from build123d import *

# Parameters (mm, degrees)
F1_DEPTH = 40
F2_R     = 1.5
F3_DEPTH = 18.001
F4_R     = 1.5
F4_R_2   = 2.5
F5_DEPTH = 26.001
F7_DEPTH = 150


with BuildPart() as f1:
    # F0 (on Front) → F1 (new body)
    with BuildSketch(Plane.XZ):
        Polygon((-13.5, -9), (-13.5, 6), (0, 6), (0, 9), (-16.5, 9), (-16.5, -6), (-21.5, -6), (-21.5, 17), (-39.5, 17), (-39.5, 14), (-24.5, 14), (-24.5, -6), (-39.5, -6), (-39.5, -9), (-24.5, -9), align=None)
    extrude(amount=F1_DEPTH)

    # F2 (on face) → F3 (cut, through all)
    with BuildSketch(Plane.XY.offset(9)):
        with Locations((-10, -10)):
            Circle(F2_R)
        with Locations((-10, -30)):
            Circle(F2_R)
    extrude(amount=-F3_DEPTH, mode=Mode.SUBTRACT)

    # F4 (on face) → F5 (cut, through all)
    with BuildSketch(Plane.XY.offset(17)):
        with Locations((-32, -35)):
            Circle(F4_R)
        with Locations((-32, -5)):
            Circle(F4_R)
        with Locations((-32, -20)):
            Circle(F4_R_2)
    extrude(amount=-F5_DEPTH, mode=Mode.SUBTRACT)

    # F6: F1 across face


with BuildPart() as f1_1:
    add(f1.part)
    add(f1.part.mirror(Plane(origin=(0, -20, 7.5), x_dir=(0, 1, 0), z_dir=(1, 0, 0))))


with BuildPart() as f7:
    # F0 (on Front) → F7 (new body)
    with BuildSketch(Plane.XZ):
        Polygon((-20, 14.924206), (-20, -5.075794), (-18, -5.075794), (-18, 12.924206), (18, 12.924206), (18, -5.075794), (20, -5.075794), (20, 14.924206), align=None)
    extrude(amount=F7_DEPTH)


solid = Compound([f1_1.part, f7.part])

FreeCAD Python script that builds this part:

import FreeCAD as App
import Part
import Sketcher
from FreeCAD import Vector
Q = App.Units.Quantity

doc = App.newDocument("Part")
body = doc.addObject("PartDesign::Body", "Body")

# Sketch on XZ plane
sketch1 = body.newObject("Sketcher::SketchObject", "Sketch")
sketch1.AttachmentSupport = (doc.getObject("XZ_Plane"), [""])
sketch1.MapMode = "FlatFace"
sketch1.addGeometry([
    Part.LineSegment(Vector(-13.5, -9, 0), Vector(-13.5, 6, 0)),  # 0
    Part.LineSegment(Vector(-13.5, 6, 0), Vector(0, 6, 0)),  # 1
    Part.LineSegment(Vector(0, 6, 0), Vector(0, 9, 0)),  # 2
    Part.LineSegment(Vector(0, 9, 0), Vector(-16.5, 9, 0)),  # 3
    Part.LineSegment(Vector(-16.5, 9, 0), Vector(-16.5, -6, 0)),  # 4
    Part.LineSegment(Vector(-16.5, -6, 0), Vector(-21.5, -6, 0)),  # 5
    Part.LineSegment(Vector(-21.5, -6, 0), Vector(-21.5, 17, 0)),  # 6
    Part.LineSegment(Vector(-21.5, 17, 0), Vector(-39.5, 17, 0)),  # 7
    Part.LineSegment(Vector(-39.5, 17, 0), Vector(-39.5, 14, 0)),  # 8
    Part.LineSegment(Vector(-39.5, 14, 0), Vector(-24.5, 14, 0)),  # 9
    Part.LineSegment(Vector(-24.5, 14, 0), Vector(-24.5, -6, 0)),  # 10
    Part.LineSegment(Vector(-24.5, -6, 0), Vector(-39.5, -6, 0)),  # 11
    Part.LineSegment(Vector(-39.5, -6, 0), Vector(-39.5, -9, 0)),  # 12
    Part.LineSegment(Vector(-39.5, -9, 0), Vector(-13.5, -9, 0)),  # 13
], False)
sketch1.addConstraint([
    Sketcher.Constraint("Coincident", 0, 2, 1, 1),
    Sketcher.Constraint("Coincident", 1, 2, 2, 1),
    Sketcher.Constraint("Coincident", 2, 2, 3, 1),
    Sketcher.Constraint("Coincident", 3, 2, 4, 1),
    Sketcher.Constraint("Coincident", 4, 2, 5, 1),
    Sketcher.Constraint("Coincident", 5, 2, 6, 1),
    Sketcher.Constraint("Coincident", 6, 2, 7, 1),
    Sketcher.Constraint("Coincident", 7, 2, 8, 1),
    Sketcher.Constraint("Coincident", 8, 2, 9, 1),
    Sketcher.Constraint("Coincident", 9, 2, 10, 1),
    Sketcher.Constraint("Coincident", 10, 2, 11, 1),
    Sketcher.Constraint("Coincident", 11, 2, 12, 1),
    Sketcher.Constraint("Coincident", 12, 2, 13, 1),
    Sketcher.Constraint("Coincident", 13, 2, 0, 1),
    Sketcher.Constraint("Vertical", 0),
    Sketcher.Constraint("Horizontal", 1),
    Sketcher.Constraint("Vertical", 2),
    Sketcher.Constraint("Horizontal", 3),
    Sketcher.Constraint("Vertical", 4),
    Sketcher.Constraint("Horizontal", 5),
    Sketcher.Constraint("Vertical", 6),
    Sketcher.Constraint("Horizontal", 7),
    Sketcher.Constraint("Vertical", 8),
    Sketcher.Constraint("Horizontal", 9),
    Sketcher.Constraint("Vertical", 10),
    Sketcher.Constraint("Horizontal", 11),
    Sketcher.Constraint("Vertical", 12),
    Sketcher.Constraint("Horizontal", 13),
    Sketcher.Constraint("PointOnObject", 1, 2, -2),
    Sketcher.Constraint("Horizontal", 5, 2, 10, 2),
    Sketcher.Constraint("Vertical", 8, 2, 11, 2),
    Sketcher.Constraint("Equal", 11, 0),
    Sketcher.Constraint("Equal", 0, 4),
    Sketcher.Constraint("Equal", 2, 8),
    Sketcher.Constraint("DistanceX", 5, 2, 5, 1, Q("5 mm")),
    Sketcher.Constraint("DistanceX", 7, 2, 7, 1, Q("18 mm")),
    Sketcher.Constraint("DistanceX", 9, 1, 9, 2, Q("15 mm")),
    Sketcher.Constraint("DistanceX", 13, 1, 13, 2, Q("26 mm")),
    Sketcher.Constraint("DistanceY", 2, 1, 2, 2, Q("3 mm")),
    Sketcher.Constraint("DistanceY", 6, 1, 6, 2, Q("23 mm")),
    Sketcher.Constraint("DistanceX", 1, 1, 1, 2, Q("13.5 mm")),
    Sketcher.Constraint("DistanceY", -1, 1, 0, 2, Q("6 mm")),
])
pad1 = body.newObject("PartDesign::Pad", "Pad")
pad1.Profile = sketch1
pad1.Length = 40

# Sketch on XY plane
sketch2 = body.newObject("Sketcher::SketchObject", "Sketch001")
sketch2.AttachmentSupport = (doc.getObject("XY_Plane"), [""])
sketch2.MapMode = "FlatFace"
sketch2.AttachmentOffset = App.Placement(Vector(0, 0, 9), App.Rotation())
sketch2.addGeometry([
    Part.Circle(Vector(-10, -10, 0), Vector(0, 0, 1), 1.5),
    Part.Circle(Vector(-10, -30, 0), Vector(0, 0, 1), 1.5),
], False)
sketch2.addConstraint([
    Sketcher.Constraint("Equal", 0, 1),
    Sketcher.Constraint("Vertical", 0, 3, 1, 3),
    Sketcher.Constraint("Diameter", 0, Q("3 mm")),
    Sketcher.Constraint("DistanceX", 0, 3, -1, 1, Q("10 mm")),
    Sketcher.Constraint("DistanceY", 0, 3, -1, 1, Q("10 mm")),
    Sketcher.Constraint("DistanceY", 1, 3, -1, 1, Q("30 mm")),
])
pocket1 = body.newObject("PartDesign::Pocket", "Pocket")
pocket1.Profile = sketch2
pocket1.Type = "ThroughAll"

# Sketch on XY plane
sketch3 = body.newObject("Sketcher::SketchObject", "Sketch002")
sketch3.AttachmentSupport = (doc.getObject("XY_Plane"), [""])
sketch3.MapMode = "FlatFace"
sketch3.AttachmentOffset = App.Placement(Vector(0, 0, 17), App.Rotation())
sketch3.addGeometry([
    Part.Circle(Vector(-32, -35, 0), Vector(0, 0, 1), 1.5),
    Part.Circle(Vector(-32, -5, 0), Vector(0, 0, 1), 1.5),
    Part.Circle(Vector(-32, -20, 0), Vector(0, 0, 1), 2.5),
], False)
sketch3.addConstraint([
    Sketcher.Constraint("Equal", 0, 1),
    Sketcher.Constraint("Vertical", 0, 3, 1, 3),
    Sketcher.Constraint("Vertical", 1, 3, 2, 3),
    Sketcher.Constraint("Diameter", 0, Q("3 mm")),
    Sketcher.Constraint("Diameter", 2, Q("5 mm")),
    Sketcher.Constraint("DistanceX", 0, 3, -1, 1, Q("32 mm")),
    Sketcher.Constraint("DistanceY", 0, 3, -1, 1, Q("35 mm")),
    Sketcher.Constraint("DistanceY", 1, 3, -1, 1, Q("5 mm")),
    Sketcher.Constraint("DistanceY", 2, 3, -1, 1, Q("20 mm")),
])
pocket2 = body.newObject("PartDesign::Pocket", "Pocket001")
pocket2.Profile = sketch3
pocket2.Type = "ThroughAll"
body2 = doc.addObject("PartDesign::Body", "Body001")
doc.recompute()

body2.BaseFeature = body
doc.recompute()

mirroring = doc.addObject("Part::Mirroring", "Mirroring")
mirroring.Source = body
mirroring.Base = Vector(0, -20, 7.5)
mirroring.Normal = Vector(1, 0, 0)
body3 = doc.addObject("PartDesign::Body", "Body002")
body3.BaseFeature = mirroring
boolean = body2.newObject("PartDesign::Boolean", "Boolean")
boolean.Type = "Fuse"
boolean.addObjects([body3])
doc.recompute()
body4 = doc.addObject("PartDesign::Body", "Body003")

# Sketch on XZ plane
sketch4 = body4.newObject("Sketcher::SketchObject", "Sketch003")
sketch4.AttachmentSupport = (doc.getObject("XZ_Plane003"), [""])
sketch4.MapMode = "FlatFace"
sketch4.addGeometry([
    Part.LineSegment(Vector(-20, 14.9, 0), Vector(-20, -5.1, 0)),  # 0
    Part.LineSegment(Vector(-20, -5.1, 0), Vector(-18, -5.1, 0)),  # 1
    Part.LineSegment(Vector(-18, -5.1, 0), Vector(-18, 12.9, 0)),  # 2
    Part.LineSegment(Vector(-18, 12.9, 0), Vector(18, 12.9, 0)),  # 3
    Part.LineSegment(Vector(18, 12.9, 0), Vector(18, -5.1, 0)),  # 4
    Part.LineSegment(Vector(18, -5.1, 0), Vector(20, -5.1, 0)),  # 5
    Part.LineSegment(Vector(20, -5.1, 0), Vector(20, 14.9, 0)),  # 6
    Part.LineSegment(Vector(20, 14.9, 0), Vector(-20, 14.9, 0)),  # 7
], False)
sketch4.addConstraint([
    Sketcher.Constraint("Coincident", 0, 2, 1, 1),
    Sketcher.Constraint("Coincident", 1, 2, 2, 1),
    Sketcher.Constraint("Coincident", 2, 2, 3, 1),
    Sketcher.Constraint("Coincident", 3, 2, 4, 1),
    Sketcher.Constraint("Coincident", 4, 2, 5, 1),
    Sketcher.Constraint("Coincident", 5, 2, 6, 1),
    Sketcher.Constraint("Coincident", 6, 2, 7, 1),
    Sketcher.Constraint("Coincident", 7, 2, 0, 1),
    Sketcher.Constraint("Vertical", 0),
    Sketcher.Constraint("Horizontal", 1),
    Sketcher.Constraint("Vertical", 2),
    Sketcher.Constraint("Horizontal", 3),
    Sketcher.Constraint("Vertical", 4),
    Sketcher.Constraint("Horizontal", 5),
    Sketcher.Constraint("Vertical", 6),
    Sketcher.Constraint("Horizontal", 7),
    Sketcher.Constraint("Symmetric", 1, 2, 4, 2, -2),
    Sketcher.Constraint("Equal", 1, 5),
    Sketcher.Constraint("DistanceX", 1, 1, 1, 2, Q("2 mm")),
    Sketcher.Constraint("DistanceX", 3, 1, 3, 2, Q("36 mm")),
    Sketcher.Constraint("DistanceY", 0, 2, 0, 1, Q("20 mm")),
    Sketcher.Constraint("DistanceY", 2, 1, 2, 2, Q("18 mm")),
    Sketcher.Constraint("DistanceY", 0, 2, -1, 1, Q("5.075794 mm")),
])
pad2 = body4.newObject("PartDesign::Pad", "Pad001")
pad2.Profile = sketch4
pad2.Length = 150
mirroring.Visibility = False

doc.recompute()
